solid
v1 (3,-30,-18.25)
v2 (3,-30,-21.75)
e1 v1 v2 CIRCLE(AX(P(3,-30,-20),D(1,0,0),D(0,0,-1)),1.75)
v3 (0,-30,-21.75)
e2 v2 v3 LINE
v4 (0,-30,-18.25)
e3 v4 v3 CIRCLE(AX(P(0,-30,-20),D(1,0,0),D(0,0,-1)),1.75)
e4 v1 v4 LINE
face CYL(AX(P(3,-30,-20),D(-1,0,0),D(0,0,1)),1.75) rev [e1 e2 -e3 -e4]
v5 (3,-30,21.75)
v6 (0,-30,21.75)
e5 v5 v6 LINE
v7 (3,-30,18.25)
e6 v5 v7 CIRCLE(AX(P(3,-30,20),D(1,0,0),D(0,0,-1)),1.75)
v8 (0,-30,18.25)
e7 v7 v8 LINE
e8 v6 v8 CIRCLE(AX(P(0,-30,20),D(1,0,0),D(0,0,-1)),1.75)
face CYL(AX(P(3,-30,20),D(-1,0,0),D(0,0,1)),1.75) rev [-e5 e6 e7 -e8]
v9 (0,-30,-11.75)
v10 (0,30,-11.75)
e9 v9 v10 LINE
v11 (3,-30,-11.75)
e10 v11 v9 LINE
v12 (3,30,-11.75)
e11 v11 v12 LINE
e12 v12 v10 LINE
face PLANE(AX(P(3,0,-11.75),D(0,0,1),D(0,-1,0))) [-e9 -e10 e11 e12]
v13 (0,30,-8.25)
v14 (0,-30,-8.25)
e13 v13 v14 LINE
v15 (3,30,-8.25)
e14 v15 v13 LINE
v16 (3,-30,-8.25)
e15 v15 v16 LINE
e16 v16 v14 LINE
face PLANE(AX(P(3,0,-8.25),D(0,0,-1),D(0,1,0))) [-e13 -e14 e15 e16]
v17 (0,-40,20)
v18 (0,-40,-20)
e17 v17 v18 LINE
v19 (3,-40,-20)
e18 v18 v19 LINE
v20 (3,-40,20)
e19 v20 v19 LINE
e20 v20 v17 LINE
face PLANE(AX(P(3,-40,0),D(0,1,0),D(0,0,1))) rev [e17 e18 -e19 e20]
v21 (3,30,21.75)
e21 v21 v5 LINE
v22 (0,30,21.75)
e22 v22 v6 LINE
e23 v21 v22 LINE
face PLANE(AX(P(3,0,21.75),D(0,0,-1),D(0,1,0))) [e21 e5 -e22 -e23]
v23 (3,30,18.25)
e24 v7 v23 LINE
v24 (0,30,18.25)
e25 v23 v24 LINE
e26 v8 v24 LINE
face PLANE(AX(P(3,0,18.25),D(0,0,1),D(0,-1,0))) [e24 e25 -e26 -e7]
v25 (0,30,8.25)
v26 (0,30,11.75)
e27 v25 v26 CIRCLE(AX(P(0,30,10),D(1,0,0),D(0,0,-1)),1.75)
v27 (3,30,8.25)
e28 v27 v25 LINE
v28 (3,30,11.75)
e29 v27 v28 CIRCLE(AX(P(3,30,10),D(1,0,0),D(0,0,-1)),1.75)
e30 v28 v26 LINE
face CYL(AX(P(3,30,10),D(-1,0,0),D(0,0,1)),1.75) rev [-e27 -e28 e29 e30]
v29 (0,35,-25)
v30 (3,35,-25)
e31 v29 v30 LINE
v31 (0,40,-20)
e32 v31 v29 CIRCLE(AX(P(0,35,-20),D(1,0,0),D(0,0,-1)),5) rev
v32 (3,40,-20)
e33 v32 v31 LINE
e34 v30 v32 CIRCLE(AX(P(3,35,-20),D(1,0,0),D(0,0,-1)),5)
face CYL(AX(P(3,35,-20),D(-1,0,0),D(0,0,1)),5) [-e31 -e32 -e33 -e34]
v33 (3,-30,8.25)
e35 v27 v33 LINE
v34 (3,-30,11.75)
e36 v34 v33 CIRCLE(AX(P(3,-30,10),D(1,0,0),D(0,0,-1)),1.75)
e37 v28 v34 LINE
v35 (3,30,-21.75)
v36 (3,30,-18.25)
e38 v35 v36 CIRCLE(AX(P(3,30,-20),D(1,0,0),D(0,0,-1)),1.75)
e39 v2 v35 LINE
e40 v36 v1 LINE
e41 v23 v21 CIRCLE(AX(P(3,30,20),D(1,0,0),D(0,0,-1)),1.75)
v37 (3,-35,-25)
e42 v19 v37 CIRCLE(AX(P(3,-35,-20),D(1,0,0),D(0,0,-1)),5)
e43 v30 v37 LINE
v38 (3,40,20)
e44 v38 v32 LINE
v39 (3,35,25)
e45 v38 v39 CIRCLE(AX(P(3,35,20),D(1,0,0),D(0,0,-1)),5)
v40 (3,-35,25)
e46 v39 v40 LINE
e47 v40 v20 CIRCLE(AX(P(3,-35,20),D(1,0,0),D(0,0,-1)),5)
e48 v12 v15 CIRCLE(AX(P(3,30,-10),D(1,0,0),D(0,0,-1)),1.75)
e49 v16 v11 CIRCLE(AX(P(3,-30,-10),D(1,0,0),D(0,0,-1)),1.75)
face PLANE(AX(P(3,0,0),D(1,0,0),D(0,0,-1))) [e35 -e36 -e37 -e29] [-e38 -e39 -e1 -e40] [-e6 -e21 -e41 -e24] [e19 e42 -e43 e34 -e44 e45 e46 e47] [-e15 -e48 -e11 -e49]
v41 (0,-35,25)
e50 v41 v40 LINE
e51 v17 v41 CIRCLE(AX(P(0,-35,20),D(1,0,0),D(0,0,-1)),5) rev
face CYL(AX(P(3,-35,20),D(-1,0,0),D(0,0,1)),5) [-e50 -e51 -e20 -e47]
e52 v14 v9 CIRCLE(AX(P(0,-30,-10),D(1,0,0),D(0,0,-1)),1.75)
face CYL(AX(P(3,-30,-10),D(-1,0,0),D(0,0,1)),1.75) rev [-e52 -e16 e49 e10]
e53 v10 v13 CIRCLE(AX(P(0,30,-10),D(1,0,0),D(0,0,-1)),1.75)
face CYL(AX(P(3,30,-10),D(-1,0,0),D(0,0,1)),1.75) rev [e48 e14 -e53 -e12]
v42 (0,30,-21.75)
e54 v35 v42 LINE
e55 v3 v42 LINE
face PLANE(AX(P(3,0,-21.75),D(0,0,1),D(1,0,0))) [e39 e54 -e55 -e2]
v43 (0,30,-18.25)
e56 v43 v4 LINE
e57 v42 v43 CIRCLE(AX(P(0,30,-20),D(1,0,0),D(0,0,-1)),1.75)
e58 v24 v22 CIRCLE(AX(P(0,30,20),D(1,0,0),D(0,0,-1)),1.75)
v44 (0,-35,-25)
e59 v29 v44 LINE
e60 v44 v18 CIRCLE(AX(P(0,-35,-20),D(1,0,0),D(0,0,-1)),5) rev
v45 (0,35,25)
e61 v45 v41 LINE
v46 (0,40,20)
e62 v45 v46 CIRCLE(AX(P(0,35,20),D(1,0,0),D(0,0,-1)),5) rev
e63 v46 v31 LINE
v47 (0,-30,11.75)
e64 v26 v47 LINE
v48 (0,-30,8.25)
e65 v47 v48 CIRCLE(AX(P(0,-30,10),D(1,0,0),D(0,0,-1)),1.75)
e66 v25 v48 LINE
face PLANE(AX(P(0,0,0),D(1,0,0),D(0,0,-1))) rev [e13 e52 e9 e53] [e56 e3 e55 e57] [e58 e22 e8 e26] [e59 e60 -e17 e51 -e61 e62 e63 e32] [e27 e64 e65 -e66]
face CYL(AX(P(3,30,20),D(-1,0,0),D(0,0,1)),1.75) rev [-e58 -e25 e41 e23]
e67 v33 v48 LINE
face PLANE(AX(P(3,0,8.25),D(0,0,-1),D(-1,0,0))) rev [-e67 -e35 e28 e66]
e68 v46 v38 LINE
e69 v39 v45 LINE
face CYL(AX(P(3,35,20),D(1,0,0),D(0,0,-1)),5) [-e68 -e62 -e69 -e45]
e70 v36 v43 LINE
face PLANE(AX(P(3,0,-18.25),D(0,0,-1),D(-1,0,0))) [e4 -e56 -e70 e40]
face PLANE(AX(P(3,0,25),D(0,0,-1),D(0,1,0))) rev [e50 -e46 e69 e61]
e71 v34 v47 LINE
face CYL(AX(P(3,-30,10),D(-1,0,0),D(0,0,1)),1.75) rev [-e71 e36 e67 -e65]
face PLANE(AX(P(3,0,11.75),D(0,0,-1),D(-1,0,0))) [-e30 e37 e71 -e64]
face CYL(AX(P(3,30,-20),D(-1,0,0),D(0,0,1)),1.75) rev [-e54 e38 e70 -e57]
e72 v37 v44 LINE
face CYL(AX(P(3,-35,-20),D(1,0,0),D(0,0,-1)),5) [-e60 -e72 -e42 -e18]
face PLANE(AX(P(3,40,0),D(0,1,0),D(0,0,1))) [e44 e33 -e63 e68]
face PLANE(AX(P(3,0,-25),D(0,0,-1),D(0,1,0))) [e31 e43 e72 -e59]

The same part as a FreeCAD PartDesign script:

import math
import FreeCAD as App
import Part
import Sketcher
from FreeCAD import Vector


def edges_at(feature, points):
    """Names of the edges that pass closest to the given points."""
    edges = feature.Shape.Edges
    near = lambda p: min(range(len(edges)), key=lambda i: edges[i].distToShape(Part.Vertex(*p))[0])
    return sorted({f"Edge{near(p) + 1}" for p in points})

doc = App.newDocument("Part")
body = doc.addObject("PartDesign::Body", "Body")

# Sketch on YZ plane
sketch1 = body.newObject("Sketcher::SketchObject", "Sketch")
sketch1.AttachmentSupport = (doc.getObject("YZ_Plane"), [""])
sketch1.MapMode = "FlatFace"
sketch1.addGeometry(Part.LineSegment(Vector(40, 25, 0), Vector(-40, 25, 0)), False)
sketch1.addGeometry(Part.LineSegment(Vector(-40, 25, 0), Vector(-40, -25, 0)), False)
sketch1.addGeometry(Part.LineSegment(Vector(-40, -25, 0), Vector(40, -25, 0)), False)
sketch1.addGeometry(Part.LineSegment(Vector(40, -25, 0), Vector(40, 25, 0)), False)
sketch1.addGeometry(Part.ArcOfCircle(Part.Circle(Vector(-30, 20, 0), Vector(0, 0, 1), 1.8), math.radians(90), math.radians(270)), False)
sketch1.addGeometry(Part.LineSegment(Vector(-30, 21.8, 0), Vector(30, 21.8, 0)), False)
sketch1.addGeometry(Part.ArcOfCircle(Part.Circle(Vector(30, 20, 0), Vector(0, 0, 1), 1.8), math.radians(-90), math.radians(90)), False)
sketch1.addGeometry(Part.LineSegment(Vector(30, 18.2, 0), Vector(-30, 18.2, 0)), False)
sketch1.addGeometry(Part.ArcOfCircle(Part.Circle(Vector(-30, 10, 0), Vector(0, 0, 1), 1.8), math.radians(90), math.radians(270)), False)
sketch1.addGeometry(Part.LineSegment(Vector(-30, 11.8, 0), Vector(30, 11.8, 0)), False)
sketch1.addGeometry(Part.ArcOfCircle(Part.Circle(Vector(30, 10, 0), Vector(0, 0, 1), 1.8), math.radians(-90), math.radians(90)), False)
sketch1.addGeometry(Part.LineSegment(Vector(30, 8.2, 0), Vector(-30, 8.2, 0)), False)
sketch1.addGeometry(Part.ArcOfCircle(Part.Circle(Vector(-30, -10, 0), Vector(0, 0, 1), 1.8), math.radians(90), math.radians(270)), False)
sketch1.addGeometry(Part.LineSegment(Vector(-30, -8.2, 0), Vector(30, -8.2, 0)), False)
sketch1.addGeometry(Part.ArcOfCircle(Part.Circle(Vector(30, -10, 0), Vector(0, 0, 1), 1.8), math.radians(-90), math.radians(90)), False)
sketch1.addGeometry(Part.LineSegment(Vector(30, -11.8, 0), Vector(-30, -11.8, 0)), False)
sketch1.addGeometry(Part.ArcOfCircle(Part.Circle(Vector(30, -20, 0), Vector(0, 0, 1), 1.8), math.radians(-90), math.radians(90)), False)
sketch1.addGeometry(Part.LineSegment(Vector(30, -21.8, 0), Vector(-30, -21.8, 0)), False)
sketch1.addGeometry(Part.ArcOfCircle(Part.Circle(Vector(-30, -20, 0), Vector(0, 0, 1), 1.8), math.radians(90), math.radians(270)), False)
sketch1.addGeometry(Part.LineSegment(Vector(-30, -18.2, 0), Vector(30, -18.2, 0)), False)
sketch1.addConstraint(Sketcher.Constraint("Coincident", 0, 2, 1, 1))
sketch1.addConstraint(Sketcher.Constraint("Coincident", 1, 2, 2, 1))
sketch1.addConstraint(Sketcher.Constraint("Coincident", 2, 2, 3, 1))
sketch1.addConstraint(Sketcher.Constraint("Coincident", 3, 2, 0, 1))
sketch1.addConstraint(Sketcher.Constraint("Tangent", 4, 1, 5, 1))
sketch1.addConstraint(Sketcher.Constraint("Tangent", 5, 2, 6, 2))
sketch1.addConstraint(Sketcher.Constraint("Tangent", 6, 1, 7, 1))
sketch1.addConstraint(Sketcher.Constraint("Tangent", 7, 2, 4, 2))
sketch1.addConstraint(Sketcher.Constraint("Tangent", 8, 1, 9, 1))
sketch1.addConstraint(Sketcher.Constraint("Tangent", 9, 2, 10, 2))
sketch1.addConstraint(Sketcher.Constraint("Tangent", 10, 1, 11, 1))
sketch1.addConstraint(Sketcher.Constraint("Tangent", 11, 2, 8, 2))
sketch1.addConstraint(Sketcher.Constraint("Tangent", 12, 1, 13, 1))
sketch1.addConstraint(Sketcher.Constraint("Tangent", 13, 2, 14, 2))
sketch1.addConstraint(Sketcher.Constraint("Tangent", 14, 1, 15, 1))
sketch1.addConstraint(Sketcher.Constraint("Tangent", 15, 2, 12, 2))
sketch1.addConstraint(Sketcher.Constraint("Tangent", 16, 1, 17, 1))
sketch1.addConstraint(Sketcher.Constraint("Tangent", 17, 2, 18, 2))
sketch1.addConstraint(Sketcher.Constraint("Tangent", 18, 1, 19, 1))
sketch1.addConstraint(Sketcher.Constraint("Tangent", 19, 2, 16, 2))
sketch1.addConstraint(Sketcher.Constraint("Horizontal", 0))
sketch1.addConstraint(Sketcher.Constraint("Vertical", 1))
sketch1.addConstraint(Sketcher.Constraint("Horizontal", 2))
sketch1.addConstraint(Sketcher.Constraint("Vertical", 3))
sketch1.addConstraint(Sketcher.Constraint("Horizontal", 5))
sketch1.addConstraint(Sketcher.Constraint("Horizontal", 7))
sketch1.addConstraint(Sketcher.Constraint("Horizontal", 9))
sketch1.addConstraint(Sketcher.Constraint("Horizontal", 11))
sketch1.addConstraint(Sketcher.Constraint("Horizontal", 13))
sketch1.addConstraint(Sketcher.Constraint("Horizontal", 15))
sketch1.addConstraint(Sketcher.Constraint("Horizontal", 17))
sketch1.addConstraint(Sketcher.Constraint("Horizontal", 19))
sketch1.addConstraint(Sketcher.Constraint("Equal", 6, 8))
sketch1.addConstraint(Sketcher.Constraint("Equal", 10, 12))
sketch1.addConstraint(Sketcher.Constraint("Equal", 14, 16))
sketch1.addConstraint(Sketcher.Constraint("Symmetric", 10, 3, 12, 3, -1, 1))
sketch1.addConstraint(Sketcher.Constraint("Symmetric", 4, 3, 16, 3, -1, 1))
sketch1.addConstraint(Sketcher.Constraint("Symmetric", 0, 2, 2, 2, -1, 1))
sketch1.addConstraint(Sketcher.Constraint("Vertical", 4, 3, 8, 3))
sketch1.addConstraint(Sketcher.Constraint("Vertical", 6, 3, 10, 3))
sketch1.addConstraint(Sketcher.Constraint("Vertical", 8, 3, 12, 3))
sketch1.addConstraint(Sketcher.Constraint("Vertical", 10, 3, 14, 3))
sketch1.addConstraint(Sketcher.Constraint("Vertical", 12, 3, 18, 3))
sketch1.addConstraint(Sketcher.Constraint("DistanceX", 0, 2, 0, 1, 80.0))
sketch1.addConstraint(Sketcher.Constraint("DistanceX", 5, 1, 5, 2, 60.0))
sketch1.addConstraint(Sketcher.Constraint("DistanceY", 1, 2, 1, 1, 50.0))
sketch1.addConstraint(Sketcher.Constraint("Radius", 4, 1.75))
sketch1.addConstraint(Sketcher.Constraint("DistanceY", -1, 1, 4, 3, 20.0))
sketch1.addConstraint(Sketcher.Constraint("DistanceY", -1, 1, 8, 3, 10.0))
pad1 = body.newObject("PartDesign::Pad", "Pad")
pad1.Profile = sketch1
pad1.Length = 3
doc.recompute()

fillet = body.newObject("PartDesign::Fillet", "Fillet")
fillet.Base = (pad1, edges_at(pad1, [
    (1.5, -40, -25),
    (1.5, -40, 25),
    (1.5, 40, 25),
    (1.5, 40, -25),
]))
fillet.Radius = 5

doc.recompute()
